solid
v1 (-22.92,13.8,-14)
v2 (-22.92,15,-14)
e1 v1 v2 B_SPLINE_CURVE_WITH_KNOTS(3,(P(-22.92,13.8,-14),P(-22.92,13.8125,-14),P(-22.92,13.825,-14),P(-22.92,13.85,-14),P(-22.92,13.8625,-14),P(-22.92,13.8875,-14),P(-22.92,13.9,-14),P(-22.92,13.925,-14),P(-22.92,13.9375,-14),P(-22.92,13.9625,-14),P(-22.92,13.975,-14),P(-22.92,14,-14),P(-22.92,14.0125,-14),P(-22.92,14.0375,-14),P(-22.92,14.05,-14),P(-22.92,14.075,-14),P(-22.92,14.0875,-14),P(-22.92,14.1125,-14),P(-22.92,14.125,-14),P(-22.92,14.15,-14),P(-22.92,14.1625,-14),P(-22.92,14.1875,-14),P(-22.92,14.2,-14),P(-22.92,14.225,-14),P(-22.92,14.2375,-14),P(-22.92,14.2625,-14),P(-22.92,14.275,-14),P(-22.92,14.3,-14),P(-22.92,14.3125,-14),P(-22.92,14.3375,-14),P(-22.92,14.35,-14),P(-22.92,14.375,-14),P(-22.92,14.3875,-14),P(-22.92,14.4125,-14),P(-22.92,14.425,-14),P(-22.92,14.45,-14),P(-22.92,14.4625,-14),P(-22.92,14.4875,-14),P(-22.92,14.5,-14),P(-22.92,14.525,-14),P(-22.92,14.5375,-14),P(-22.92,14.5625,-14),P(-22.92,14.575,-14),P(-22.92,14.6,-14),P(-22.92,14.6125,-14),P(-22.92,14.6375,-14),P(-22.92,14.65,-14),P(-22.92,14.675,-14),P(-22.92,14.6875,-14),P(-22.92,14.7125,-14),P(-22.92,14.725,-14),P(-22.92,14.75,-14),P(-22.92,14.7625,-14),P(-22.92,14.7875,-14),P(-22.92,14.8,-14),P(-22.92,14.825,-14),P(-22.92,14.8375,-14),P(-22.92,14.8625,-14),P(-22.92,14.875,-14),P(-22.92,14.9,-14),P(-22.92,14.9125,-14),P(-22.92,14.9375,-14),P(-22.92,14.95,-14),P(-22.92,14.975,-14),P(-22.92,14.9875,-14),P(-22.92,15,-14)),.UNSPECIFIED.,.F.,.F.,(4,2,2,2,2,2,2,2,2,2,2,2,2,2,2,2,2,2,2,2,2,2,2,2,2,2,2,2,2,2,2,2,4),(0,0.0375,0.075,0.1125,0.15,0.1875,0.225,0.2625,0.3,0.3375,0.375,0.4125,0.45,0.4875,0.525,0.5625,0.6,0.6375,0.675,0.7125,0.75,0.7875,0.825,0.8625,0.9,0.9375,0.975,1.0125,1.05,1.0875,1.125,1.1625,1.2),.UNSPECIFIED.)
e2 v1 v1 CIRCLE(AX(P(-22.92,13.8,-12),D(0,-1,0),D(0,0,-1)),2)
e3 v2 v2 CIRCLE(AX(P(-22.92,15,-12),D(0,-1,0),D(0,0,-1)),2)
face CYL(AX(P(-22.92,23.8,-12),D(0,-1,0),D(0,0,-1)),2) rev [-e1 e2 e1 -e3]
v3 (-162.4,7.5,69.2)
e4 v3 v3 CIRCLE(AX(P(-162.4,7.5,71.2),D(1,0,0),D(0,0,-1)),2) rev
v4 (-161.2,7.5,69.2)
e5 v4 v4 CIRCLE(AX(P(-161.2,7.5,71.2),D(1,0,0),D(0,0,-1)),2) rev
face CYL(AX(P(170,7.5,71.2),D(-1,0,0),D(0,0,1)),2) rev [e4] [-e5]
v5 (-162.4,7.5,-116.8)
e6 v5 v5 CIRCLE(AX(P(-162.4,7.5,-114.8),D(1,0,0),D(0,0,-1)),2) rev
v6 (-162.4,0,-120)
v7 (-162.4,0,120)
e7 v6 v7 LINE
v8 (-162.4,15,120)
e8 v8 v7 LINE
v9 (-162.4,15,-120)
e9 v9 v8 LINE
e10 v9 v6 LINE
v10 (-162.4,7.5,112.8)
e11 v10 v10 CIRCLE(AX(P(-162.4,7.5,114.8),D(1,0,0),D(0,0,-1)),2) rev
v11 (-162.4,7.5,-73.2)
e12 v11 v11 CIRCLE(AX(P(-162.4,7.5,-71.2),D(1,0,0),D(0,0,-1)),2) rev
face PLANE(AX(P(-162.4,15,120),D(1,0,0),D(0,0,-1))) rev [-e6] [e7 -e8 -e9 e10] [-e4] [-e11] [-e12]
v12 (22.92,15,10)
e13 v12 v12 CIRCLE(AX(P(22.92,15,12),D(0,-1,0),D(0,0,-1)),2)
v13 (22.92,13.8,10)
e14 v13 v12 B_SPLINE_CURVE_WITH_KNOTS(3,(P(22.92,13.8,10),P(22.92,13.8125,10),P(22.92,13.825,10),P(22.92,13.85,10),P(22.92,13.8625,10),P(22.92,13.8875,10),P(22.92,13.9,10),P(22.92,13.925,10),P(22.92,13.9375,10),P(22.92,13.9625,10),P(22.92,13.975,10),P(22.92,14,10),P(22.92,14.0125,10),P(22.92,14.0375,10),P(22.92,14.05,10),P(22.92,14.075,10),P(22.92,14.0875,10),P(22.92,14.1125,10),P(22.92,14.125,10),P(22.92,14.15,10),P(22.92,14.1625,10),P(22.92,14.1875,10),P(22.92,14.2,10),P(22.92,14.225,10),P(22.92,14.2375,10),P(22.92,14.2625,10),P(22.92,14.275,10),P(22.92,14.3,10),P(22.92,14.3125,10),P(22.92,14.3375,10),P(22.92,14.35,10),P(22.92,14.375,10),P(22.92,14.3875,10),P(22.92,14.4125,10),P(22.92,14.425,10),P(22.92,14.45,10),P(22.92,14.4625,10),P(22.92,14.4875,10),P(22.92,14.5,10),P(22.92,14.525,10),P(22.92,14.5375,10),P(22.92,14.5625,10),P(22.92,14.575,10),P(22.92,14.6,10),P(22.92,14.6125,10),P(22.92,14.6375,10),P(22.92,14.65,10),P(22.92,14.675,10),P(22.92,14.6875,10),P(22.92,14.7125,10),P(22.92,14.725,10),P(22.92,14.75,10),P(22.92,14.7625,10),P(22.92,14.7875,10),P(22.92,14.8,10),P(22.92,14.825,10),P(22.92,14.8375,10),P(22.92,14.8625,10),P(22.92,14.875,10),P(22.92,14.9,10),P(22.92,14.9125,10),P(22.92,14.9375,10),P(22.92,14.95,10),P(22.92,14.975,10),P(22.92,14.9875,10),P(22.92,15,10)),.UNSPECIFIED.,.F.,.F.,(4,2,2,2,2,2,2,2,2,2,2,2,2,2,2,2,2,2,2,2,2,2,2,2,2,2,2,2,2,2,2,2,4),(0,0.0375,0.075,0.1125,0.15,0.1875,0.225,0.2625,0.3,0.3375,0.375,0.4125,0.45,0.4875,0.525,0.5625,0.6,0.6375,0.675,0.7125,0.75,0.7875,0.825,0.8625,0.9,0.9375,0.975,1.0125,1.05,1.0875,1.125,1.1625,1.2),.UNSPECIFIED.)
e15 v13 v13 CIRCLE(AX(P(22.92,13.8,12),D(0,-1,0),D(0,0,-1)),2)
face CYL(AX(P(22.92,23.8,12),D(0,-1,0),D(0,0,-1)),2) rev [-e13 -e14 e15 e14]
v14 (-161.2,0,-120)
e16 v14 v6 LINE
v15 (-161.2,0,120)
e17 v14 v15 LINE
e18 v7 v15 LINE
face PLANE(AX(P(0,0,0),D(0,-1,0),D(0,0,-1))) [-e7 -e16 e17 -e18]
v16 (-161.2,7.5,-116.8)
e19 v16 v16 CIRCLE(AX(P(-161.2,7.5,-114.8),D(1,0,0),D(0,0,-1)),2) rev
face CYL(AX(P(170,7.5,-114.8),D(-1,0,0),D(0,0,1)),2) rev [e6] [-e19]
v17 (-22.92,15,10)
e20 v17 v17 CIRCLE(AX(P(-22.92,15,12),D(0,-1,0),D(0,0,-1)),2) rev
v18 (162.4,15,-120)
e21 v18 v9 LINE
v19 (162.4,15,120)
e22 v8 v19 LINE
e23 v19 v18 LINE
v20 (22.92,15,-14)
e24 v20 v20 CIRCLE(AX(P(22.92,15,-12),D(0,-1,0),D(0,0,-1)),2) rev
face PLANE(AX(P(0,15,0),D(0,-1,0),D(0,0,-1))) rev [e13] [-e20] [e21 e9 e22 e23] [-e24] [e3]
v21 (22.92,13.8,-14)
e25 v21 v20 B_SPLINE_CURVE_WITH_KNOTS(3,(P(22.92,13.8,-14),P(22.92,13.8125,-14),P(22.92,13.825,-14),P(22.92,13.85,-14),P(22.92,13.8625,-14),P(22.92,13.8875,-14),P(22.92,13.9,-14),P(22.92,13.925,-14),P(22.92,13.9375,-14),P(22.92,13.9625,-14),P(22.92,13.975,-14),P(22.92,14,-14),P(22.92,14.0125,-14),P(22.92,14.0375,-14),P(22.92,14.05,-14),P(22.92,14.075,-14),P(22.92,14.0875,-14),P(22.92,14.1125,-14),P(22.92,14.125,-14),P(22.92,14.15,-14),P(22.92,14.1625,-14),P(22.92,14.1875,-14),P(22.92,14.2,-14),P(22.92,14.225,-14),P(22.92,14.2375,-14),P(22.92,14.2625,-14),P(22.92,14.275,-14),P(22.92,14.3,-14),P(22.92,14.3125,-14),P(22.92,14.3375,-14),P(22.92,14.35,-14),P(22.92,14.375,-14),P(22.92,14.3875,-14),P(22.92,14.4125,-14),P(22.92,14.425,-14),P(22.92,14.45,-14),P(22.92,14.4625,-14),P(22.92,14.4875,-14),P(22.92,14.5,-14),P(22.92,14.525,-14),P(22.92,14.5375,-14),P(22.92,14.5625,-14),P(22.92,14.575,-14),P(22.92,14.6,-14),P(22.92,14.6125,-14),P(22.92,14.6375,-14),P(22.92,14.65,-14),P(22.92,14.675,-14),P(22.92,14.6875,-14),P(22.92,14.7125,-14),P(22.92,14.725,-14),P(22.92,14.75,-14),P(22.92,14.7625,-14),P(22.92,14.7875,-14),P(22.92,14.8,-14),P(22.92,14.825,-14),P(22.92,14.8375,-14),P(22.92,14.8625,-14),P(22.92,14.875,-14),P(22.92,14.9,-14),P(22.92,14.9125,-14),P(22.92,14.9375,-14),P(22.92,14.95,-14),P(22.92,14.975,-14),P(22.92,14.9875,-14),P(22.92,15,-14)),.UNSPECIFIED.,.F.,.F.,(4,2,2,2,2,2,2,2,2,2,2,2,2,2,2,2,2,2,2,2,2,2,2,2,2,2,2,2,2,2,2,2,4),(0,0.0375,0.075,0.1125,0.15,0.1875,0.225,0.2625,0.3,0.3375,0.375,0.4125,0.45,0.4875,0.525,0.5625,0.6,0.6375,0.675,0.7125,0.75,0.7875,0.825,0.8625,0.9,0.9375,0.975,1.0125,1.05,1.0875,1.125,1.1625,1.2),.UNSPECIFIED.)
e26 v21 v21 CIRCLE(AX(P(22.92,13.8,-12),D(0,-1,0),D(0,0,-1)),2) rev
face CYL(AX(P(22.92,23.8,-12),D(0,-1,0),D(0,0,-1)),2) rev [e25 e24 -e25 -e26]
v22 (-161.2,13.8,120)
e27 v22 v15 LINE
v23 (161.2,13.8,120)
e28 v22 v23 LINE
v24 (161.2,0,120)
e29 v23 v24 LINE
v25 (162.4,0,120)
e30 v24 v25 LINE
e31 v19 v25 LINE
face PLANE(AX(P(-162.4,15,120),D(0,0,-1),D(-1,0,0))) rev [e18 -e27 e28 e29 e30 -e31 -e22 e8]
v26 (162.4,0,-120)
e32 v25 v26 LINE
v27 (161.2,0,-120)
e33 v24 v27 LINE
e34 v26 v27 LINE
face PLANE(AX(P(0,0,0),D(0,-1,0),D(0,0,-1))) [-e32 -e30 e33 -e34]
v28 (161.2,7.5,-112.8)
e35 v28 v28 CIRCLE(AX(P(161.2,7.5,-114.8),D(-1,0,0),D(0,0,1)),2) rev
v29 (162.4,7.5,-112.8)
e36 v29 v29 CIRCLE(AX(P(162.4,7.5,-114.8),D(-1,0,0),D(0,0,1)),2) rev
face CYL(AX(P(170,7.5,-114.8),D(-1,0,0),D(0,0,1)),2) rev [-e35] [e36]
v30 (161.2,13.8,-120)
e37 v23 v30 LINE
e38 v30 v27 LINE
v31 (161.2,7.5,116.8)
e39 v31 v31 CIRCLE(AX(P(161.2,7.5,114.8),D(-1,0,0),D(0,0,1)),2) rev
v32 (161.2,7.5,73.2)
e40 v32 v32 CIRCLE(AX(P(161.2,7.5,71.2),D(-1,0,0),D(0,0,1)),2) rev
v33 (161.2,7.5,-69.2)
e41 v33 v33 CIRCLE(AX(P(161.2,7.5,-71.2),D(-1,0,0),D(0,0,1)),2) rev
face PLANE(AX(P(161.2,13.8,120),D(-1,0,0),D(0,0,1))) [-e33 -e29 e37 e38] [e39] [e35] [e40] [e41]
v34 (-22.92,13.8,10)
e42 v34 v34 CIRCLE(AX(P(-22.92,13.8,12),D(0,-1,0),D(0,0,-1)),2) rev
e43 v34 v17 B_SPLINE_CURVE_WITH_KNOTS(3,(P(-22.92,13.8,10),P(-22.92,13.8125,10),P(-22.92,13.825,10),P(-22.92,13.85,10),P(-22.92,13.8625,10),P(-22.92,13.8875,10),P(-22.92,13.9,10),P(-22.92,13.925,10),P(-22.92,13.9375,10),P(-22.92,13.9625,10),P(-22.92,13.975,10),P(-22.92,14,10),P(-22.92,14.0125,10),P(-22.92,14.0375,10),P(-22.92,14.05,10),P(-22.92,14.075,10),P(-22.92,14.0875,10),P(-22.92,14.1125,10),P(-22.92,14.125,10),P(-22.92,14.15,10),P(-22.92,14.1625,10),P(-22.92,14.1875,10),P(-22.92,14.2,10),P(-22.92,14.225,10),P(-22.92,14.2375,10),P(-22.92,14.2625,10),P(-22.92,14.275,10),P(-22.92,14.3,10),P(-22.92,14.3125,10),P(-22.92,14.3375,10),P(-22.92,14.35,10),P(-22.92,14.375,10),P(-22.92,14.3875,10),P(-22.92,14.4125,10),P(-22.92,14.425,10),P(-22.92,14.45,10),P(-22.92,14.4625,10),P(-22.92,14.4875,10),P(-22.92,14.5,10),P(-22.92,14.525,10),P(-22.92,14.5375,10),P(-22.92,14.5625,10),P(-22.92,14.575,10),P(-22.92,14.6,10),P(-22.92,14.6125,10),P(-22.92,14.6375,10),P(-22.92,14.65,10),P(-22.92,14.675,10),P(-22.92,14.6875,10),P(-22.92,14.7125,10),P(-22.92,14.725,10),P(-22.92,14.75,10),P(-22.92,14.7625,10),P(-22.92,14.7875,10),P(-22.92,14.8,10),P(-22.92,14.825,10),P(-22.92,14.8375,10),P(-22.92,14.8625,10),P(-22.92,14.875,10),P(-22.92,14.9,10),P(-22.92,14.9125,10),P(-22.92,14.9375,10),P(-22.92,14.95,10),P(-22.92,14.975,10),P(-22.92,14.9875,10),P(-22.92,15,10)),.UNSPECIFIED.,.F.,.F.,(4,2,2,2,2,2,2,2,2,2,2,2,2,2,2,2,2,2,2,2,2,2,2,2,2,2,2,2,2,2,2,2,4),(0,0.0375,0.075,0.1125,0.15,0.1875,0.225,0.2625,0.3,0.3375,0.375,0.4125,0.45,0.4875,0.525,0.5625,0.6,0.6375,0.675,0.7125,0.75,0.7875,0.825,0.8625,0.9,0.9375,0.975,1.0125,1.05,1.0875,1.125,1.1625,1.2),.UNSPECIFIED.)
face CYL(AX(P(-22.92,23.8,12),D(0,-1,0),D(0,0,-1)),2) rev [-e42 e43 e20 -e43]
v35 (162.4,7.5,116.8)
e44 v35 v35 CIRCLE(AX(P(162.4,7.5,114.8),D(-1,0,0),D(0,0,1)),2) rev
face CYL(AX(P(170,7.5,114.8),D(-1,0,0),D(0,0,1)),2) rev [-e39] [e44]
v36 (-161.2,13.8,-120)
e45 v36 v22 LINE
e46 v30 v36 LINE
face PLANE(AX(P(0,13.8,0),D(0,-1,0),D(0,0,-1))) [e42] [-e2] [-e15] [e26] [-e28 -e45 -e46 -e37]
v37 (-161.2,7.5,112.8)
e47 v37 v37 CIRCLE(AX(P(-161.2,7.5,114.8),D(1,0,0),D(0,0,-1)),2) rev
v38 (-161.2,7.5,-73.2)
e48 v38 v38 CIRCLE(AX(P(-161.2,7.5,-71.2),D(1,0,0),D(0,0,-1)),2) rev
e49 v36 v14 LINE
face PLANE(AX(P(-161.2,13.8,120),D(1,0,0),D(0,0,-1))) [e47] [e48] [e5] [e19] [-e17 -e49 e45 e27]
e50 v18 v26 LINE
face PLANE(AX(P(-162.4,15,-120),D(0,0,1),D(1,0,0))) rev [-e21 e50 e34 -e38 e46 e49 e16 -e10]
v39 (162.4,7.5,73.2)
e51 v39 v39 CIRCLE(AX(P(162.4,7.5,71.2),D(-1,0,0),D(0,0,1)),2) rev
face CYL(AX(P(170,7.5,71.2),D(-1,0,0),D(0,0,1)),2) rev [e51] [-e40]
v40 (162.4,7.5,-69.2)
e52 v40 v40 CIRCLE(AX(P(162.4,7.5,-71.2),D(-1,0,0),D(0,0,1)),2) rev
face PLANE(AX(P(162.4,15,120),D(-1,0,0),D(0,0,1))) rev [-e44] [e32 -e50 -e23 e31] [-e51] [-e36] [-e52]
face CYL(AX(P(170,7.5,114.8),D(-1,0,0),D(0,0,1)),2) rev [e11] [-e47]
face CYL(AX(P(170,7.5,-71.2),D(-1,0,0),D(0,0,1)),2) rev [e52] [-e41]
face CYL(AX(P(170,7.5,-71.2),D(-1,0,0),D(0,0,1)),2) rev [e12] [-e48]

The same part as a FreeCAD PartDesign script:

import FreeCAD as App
import Part
import Sketcher

V = App.Vector
Q = App.Units.Quantity

doc = App.newDocument("Part")
body = doc.addObject("PartDesign::Body", "Body")

# Sketch on XZ plane
sketch1 = body.newObject("Sketcher::SketchObject", "Sketch")
sketch1.AttachmentSupport = (doc.getObject("XZ_Plane"), [""])
sketch1.MapMode = "FlatFace"
sketch1.addGeometry([
    Part.LineSegment(V(-162, -120, 0), V(-162, 120, 0)),
    Part.LineSegment(V(-162, 120, 0), V(162, 120, 0)),
    Part.LineSegment(V(162, 120, 0), V(162, -120, 0)),
    Part.LineSegment(V(162, -120, 0), V(-162, -120, 0)),
], False)
sketch1.addConstraint([
    Sketcher.Constraint("Coincident", 0, 2, 1, 1),
    Sketcher.Constraint("Coincident", 1, 2, 2, 1),
    Sketcher.Constraint("Coincident", 2, 2, 3, 1),
    Sketcher.Constraint("Coincident", 3, 2, 0, 1),
    Sketcher.Constraint("Vertical", 0),
    Sketcher.Constraint("Horizontal", 1),
    Sketcher.Constraint("Vertical", 2),
    Sketcher.Constraint("Horizontal", 3),
    Sketcher.Constraint("Symmetric", 0, 2, 2, 2, -1, 1),
    Sketcher.Constraint("DistanceY", 0, 1, 0, 2, Q("240 mm")),
    Sketcher.Constraint("DistanceX", 1, 1, 1, 2, Q("324.8 mm")),
])
pad1 = body.newObject("PartDesign::Pad", "Pad")
pad1.Profile = sketch1
pad1.Length = 15
pad1.Reversed = True

# Sketch on XZ plane
sketch2 = body.newObject("Sketcher::SketchObject", "Sketch001")
sketch2.AttachmentSupport = (doc.getObject("XZ_Plane"), [""])
sketch2.MapMode = "FlatFace"
sketch2.addGeometry([
    Part.LineSegment(V(-161, -120, 0), V(-161, 120, 0)),
    Part.LineSegment(V(-161, 120, 0), V(161, 120, 0)),
    Part.LineSegment(V(161, 120, 0), V(161, -120, 0)),
    Part.LineSegment(V(161, -120, 0), V(-161, -120, 0)),
], False)
sketch2.addConstraint([
    Sketcher.Constraint("Coincident", 0, 2, 1, 1),
    Sketcher.Constraint("Coincident", 1, 2, 2, 1),
    Sketcher.Constraint("Coincident", 2, 2, 3, 1),
    Sketcher.Constraint("Coincident", 3, 2, 0, 1),
    Sketcher.Constraint("Vertical", 0),
    Sketcher.Constraint("Horizontal", 1),
    Sketcher.Constraint("Vertical", 2),
    Sketcher.Constraint("Horizontal", 3),
    Sketcher.Constraint("Symmetric", 0, 2, 2, 2, -1, 1),
    Sketcher.Constraint("DistanceY", 0, 1, 0, 2, Q("240 mm")),
    Sketcher.Constraint("DistanceX", 1, 1, 1, 2, Q("322.4 mm")),
])
pocket1 = body.newObject("PartDesign::Pocket", "Pocket")
pocket1.Profile = sketch2
pocket1.Length = 13.8

# Sketch on XZ plane
sketch3 = body.newObject("Sketcher::SketchObject", "Sketch002")
sketch3.AttachmentSupport = (doc.getObject("XZ_Plane"), [""])
sketch3.MapMode = "FlatFace"
sketch3.AttachmentOffset = App.Placement(V(0, 0, -10), App.Rotation())
sketch3.addGeometry([
    Part.Circle(V(-22.9, 12, 0), V(0, 0, 1), 2),
    Part.Circle(V(22.9, 12, 0), V(0, 0, 1), 2),
    Part.Circle(V(22.9, -12, 0), V(0, 0, 1), 2),
    Part.Circle(V(-22.9, -12, 0), V(0, 0, 1), 2),
], False)
sketch3.addConstraint([
    Sketcher.Constraint("Equal", 0, 1),
    Sketcher.Constraint("Equal", 1, 2),
    Sketcher.Constraint("Equal", 2, 3),
    Sketcher.Constraint("Symmetric", 0, 3, 2, 3, -1, 1),
    Sketcher.Constraint("Symmetric", 1, 3, 3, 3, -1, 1),
    Sketcher.Constraint("Symmetric", 0, 3, 1, 3, -2),
    Sketcher.Constraint("Diameter", 0, Q("4 mm")),
    Sketcher.Constraint("DistanceY", -1, 1, 0, 3, Q("12 mm")),
    Sketcher.Constraint("DistanceX", 0, 3, -1, 1, Q("22.92 mm")),
])
pocket2 = body.newObject("PartDesign::Pocket", "Pocket001")
pocket2.Profile = sketch3
pocket2.Length = 13.8

# Sketch on YZ plane
sketch4 = body.newObject("Sketcher::SketchObject", "Sketch003")
sketch4.AttachmentSupport = (doc.getObject("YZ_Plane"), [""])
sketch4.MapMode = "FlatFace"
sketch4.addGeometry([
    Part.Circle(V(7.5, -114.8, 0), V(0, 0, 1), 2),
    Part.Circle(V(7.5, -71.2, 0), V(0, 0, 1), 2),
    Part.Circle(V(7.5, 114.8, 0), V(0, 0, 1), 2),
    Part.Circle(V(7.5, 71.2, 0), V(0, 0, 1), 2),
], False)
sketch4.addConstraint([
    Sketcher.Constraint("Equal", 0, 1),
    Sketcher.Constraint("Equal", 1, 2),
    Sketcher.Constraint("Equal", 2, 3),
    Sketcher.Constraint("Symmetric", 0, 3, 2, 3, -1),
    Sketcher.Constraint("Symmetric", 1, 3, 3, 3, -1),
    Sketcher.Constraint("Vertical", 0, 3, 1, 3),
    Sketcher.Constraint("Diameter", 0, Q("4 mm")),
    Sketcher.Constraint("DistanceY", 1, 3, 2, 3, Q("186 mm")),
    Sketcher.Constraint("DistanceX", -1, 1, 0, 3, Q("7.5 mm")),
    Sketcher.Constraint("DistanceY", 0, 3, -1, 1, Q("114.8 mm")),
])
pocket3 = body.newObject("PartDesign::Pocket", "Pocket002")
pocket3.Profile = sketch4
pocket3.Type = "ThroughAll"
pocket3.Midplane = True

doc.recompute()
